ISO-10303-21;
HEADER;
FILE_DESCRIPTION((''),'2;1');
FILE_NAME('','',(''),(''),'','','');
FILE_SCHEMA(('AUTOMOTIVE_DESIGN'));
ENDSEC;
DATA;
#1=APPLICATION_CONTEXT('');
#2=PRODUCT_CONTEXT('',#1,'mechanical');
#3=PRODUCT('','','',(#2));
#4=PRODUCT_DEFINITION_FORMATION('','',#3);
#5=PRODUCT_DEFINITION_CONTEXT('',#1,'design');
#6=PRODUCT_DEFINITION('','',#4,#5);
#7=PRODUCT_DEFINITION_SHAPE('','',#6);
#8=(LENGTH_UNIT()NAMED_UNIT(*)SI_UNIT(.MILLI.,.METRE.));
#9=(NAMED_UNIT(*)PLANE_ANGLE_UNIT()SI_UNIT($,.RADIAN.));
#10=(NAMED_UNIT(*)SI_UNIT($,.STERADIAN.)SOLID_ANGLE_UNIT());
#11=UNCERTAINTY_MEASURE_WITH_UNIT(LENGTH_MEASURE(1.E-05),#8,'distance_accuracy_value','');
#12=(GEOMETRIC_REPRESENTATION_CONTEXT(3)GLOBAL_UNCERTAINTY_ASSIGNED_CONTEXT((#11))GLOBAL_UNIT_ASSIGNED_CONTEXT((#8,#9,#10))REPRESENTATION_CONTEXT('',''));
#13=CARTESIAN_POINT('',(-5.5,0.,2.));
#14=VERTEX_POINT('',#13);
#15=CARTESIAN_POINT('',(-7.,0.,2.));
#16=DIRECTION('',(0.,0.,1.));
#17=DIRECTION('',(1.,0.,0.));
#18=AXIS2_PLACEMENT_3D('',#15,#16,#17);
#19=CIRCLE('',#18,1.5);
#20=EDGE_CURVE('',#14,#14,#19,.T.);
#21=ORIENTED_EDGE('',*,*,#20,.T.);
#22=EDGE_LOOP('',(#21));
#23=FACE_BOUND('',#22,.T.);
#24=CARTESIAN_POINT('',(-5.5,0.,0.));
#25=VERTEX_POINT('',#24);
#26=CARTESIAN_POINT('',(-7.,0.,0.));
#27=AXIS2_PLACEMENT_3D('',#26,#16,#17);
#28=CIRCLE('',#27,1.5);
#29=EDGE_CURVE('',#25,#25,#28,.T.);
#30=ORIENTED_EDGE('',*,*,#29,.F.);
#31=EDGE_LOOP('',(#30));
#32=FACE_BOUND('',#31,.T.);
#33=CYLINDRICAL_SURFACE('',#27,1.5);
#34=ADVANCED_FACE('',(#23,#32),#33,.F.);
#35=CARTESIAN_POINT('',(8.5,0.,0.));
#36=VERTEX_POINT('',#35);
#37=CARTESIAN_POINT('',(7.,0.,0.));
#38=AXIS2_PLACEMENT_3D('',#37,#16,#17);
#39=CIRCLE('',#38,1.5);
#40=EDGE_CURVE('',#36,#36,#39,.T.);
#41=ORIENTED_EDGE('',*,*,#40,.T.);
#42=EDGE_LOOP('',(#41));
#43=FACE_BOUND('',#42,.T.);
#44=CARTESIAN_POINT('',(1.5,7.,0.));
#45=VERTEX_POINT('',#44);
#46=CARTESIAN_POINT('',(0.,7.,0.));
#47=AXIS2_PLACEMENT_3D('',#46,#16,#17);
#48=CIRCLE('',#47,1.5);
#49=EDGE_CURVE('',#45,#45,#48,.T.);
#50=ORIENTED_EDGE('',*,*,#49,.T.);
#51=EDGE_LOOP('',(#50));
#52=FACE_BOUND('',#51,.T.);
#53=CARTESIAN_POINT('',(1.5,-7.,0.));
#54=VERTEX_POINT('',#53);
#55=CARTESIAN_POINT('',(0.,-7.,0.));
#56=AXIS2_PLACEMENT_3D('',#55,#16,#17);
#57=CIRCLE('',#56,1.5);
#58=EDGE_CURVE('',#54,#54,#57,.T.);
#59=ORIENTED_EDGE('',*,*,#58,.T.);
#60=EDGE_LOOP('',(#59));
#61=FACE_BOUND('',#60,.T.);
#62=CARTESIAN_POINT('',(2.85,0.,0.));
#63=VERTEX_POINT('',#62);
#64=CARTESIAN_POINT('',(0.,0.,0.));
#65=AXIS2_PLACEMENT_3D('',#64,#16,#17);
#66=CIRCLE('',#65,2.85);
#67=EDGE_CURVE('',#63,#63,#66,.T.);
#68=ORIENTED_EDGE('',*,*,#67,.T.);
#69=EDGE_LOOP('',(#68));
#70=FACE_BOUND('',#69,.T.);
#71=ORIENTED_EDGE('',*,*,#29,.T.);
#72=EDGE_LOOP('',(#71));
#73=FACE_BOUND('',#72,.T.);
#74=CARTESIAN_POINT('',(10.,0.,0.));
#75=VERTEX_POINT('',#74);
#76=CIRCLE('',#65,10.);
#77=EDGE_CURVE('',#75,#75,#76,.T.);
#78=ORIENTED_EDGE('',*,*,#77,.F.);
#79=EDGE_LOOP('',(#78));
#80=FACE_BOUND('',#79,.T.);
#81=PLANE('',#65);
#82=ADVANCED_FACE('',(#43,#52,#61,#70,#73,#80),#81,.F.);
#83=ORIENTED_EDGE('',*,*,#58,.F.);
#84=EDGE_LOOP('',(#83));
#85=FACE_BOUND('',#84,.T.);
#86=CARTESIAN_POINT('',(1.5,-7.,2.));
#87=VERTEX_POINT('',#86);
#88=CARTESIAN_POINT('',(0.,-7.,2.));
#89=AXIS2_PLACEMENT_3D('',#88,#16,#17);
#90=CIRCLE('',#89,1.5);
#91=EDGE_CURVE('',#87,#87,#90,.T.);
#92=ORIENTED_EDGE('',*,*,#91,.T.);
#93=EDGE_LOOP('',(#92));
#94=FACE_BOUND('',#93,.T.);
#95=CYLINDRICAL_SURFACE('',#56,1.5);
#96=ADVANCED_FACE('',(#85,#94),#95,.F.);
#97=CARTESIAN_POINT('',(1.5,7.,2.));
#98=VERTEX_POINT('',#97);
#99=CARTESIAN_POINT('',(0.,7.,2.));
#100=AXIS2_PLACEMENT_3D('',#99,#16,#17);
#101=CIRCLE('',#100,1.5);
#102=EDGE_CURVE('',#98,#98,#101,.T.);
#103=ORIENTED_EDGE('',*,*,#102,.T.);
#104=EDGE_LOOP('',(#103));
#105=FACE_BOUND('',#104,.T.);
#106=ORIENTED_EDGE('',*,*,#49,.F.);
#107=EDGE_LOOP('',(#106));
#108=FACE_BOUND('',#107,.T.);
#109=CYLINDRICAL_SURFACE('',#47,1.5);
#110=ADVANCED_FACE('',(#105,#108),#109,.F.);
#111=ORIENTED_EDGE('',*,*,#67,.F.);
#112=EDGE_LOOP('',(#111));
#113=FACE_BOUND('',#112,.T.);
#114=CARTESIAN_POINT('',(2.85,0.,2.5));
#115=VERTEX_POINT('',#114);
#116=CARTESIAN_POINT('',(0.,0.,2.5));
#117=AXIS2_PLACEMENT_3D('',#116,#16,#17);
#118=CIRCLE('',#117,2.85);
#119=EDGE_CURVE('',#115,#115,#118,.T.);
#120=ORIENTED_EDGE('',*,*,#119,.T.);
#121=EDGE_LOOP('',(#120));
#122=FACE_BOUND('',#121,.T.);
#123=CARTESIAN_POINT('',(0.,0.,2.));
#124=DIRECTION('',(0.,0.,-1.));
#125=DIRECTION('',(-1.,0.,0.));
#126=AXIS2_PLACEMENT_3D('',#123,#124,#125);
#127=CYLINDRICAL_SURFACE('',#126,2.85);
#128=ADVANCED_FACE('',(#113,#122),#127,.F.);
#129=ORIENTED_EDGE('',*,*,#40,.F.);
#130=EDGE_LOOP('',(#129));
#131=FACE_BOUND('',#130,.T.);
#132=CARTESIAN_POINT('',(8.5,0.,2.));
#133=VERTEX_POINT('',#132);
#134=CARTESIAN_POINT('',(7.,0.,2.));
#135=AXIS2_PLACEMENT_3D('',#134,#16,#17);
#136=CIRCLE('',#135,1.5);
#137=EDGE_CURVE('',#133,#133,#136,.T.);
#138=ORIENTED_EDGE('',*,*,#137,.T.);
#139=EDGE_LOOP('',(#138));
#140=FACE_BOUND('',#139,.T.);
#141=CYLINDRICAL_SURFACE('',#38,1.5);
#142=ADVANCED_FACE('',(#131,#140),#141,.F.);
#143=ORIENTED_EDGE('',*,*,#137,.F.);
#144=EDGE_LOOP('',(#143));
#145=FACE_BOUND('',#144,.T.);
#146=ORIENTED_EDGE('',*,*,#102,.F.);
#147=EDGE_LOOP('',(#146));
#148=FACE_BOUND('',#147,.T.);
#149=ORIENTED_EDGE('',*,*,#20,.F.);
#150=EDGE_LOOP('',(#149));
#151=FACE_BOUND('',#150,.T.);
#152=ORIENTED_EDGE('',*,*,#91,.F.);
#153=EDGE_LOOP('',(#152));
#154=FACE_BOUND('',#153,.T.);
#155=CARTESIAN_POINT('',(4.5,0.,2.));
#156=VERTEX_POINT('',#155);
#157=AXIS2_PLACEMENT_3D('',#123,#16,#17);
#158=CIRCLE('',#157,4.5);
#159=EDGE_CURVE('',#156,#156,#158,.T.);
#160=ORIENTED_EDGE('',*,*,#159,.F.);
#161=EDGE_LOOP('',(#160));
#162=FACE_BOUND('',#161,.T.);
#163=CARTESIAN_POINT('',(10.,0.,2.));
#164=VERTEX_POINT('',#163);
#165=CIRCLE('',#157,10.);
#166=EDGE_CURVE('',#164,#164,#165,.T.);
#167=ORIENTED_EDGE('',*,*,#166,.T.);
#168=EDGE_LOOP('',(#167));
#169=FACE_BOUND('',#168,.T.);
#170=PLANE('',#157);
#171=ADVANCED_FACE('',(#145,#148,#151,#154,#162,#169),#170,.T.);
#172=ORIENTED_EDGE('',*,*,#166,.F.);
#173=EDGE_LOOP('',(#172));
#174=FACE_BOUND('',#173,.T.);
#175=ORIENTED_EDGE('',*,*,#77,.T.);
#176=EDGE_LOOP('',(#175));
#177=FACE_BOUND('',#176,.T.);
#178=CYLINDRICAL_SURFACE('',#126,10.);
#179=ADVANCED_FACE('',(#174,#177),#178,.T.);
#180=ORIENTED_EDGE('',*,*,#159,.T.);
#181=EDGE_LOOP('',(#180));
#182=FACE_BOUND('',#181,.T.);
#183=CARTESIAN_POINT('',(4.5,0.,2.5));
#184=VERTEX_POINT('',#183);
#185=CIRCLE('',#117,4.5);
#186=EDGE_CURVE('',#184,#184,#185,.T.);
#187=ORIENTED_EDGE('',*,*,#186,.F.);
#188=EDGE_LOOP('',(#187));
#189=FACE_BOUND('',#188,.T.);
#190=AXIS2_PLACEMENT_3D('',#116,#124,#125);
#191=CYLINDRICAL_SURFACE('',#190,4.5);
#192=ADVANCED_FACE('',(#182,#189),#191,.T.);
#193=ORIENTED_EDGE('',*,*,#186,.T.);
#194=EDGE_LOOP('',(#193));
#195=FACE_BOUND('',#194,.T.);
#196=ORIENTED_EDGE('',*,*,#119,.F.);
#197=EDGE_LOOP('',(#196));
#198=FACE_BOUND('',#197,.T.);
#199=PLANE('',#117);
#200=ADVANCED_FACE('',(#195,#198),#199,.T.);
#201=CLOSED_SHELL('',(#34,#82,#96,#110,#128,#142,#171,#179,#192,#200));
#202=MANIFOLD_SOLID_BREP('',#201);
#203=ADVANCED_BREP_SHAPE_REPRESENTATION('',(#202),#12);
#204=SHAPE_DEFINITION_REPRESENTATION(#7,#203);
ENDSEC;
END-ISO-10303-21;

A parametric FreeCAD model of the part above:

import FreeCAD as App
import Part
import Sketcher
Q = App.Units.Quantity

doc = App.newDocument("Part")
body = doc.addObject("PartDesign::Body", "Body")

# Sketch on XY plane
sketch1 = body.newObject("Sketcher::SketchObject", "Sketch")
sketch1.AttachmentSupport = (doc.getObject("XY_Plane"), [""])
sketch1.MapMode = "FlatFace"
sketch1.addGeometry(Part.Circle(App.Vector(0, 0, 0), App.Vector(0, 0, 1), 10), False)
sketch1.addGeometry(Part.Circle(App.Vector(0, 0, 0), App.Vector(0, 0, 1), 2.85), False)
sketch1.addConstraint(Sketcher.Constraint("Coincident", 0, 3, -1, 1))
sketch1.addConstraint(Sketcher.Constraint("Coincident", 1, 3, -1, 1))
sketch1.addConstraint(Sketcher.Constraint("Diameter", 0, Q("20 mm")))
sketch1.addConstraint(Sketcher.Constraint("Diameter", 1, Q("5.7 mm")))
pad1 = body.newObject("PartDesign::Pad", "Pad")
pad1.Profile = sketch1
pad1.Length = 2

# Sketch on XY plane
sketch2 = body.newObject("Sketcher::SketchObject", "Sketch001")
sketch2.AttachmentSupport = (doc.getObject("XY_Plane"), [""])
sketch2.MapMode = "FlatFace"
sketch2.AttachmentOffset = App.Placement(App.Vector(0, 0, 2), App.Rotation())
sketch2.addGeometry(Part.Circle(App.Vector(0, 0, 0), App.Vector(0, 0, 1), 4.5), False)
sketch2.addGeometry(Part.Circle(App.Vector(0, 0, 0), App.Vector(0, 0, 1), 2.85), False)
sketch2.addConstraint(Sketcher.Constraint("Coincident", 0, 3, -1, 1))
sketch2.addConstraint(Sketcher.Constraint("Coincident", 1, 3, -1, 1))
sketch2.addConstraint(Sketcher.Constraint("Diameter", 0, Q("9 mm")))
sketch2.addConstraint(Sketcher.Constraint("Diameter", 1, Q("5.7 mm")))
pad2 = body.newObject("PartDesign::Pad", "Pad001")
pad2.Profile = sketch2
pad2.Length = 0.5

# Sketch on XY plane
sketch3 = body.newObject("Sketcher::SketchObject", "Sketch002")
sketch3.AttachmentSupport = (doc.getObject("XY_Plane"), [""])
sketch3.MapMode = "FlatFace"
sketch3.AttachmentOffset = App.Placement(App.Vector(0, 0, 2), App.Rotation())
sketch3.addGeometry(Part.Circle(App.Vector(0, 7, 0), App.Vector(0, 0, 1), 1.5), False)
sketch3.addGeometry(Part.Circle(App.Vector(0, -7, 0), App.Vector(0, 0, 1), 1.5), False)
sketch3.addGeometry(Part.Circle(App.Vector(7, 0, 0), App.Vector(0, 0, 1), 1.5), False)
sketch3.addGeometry(Part.Circle(App.Vector(-7, 0, 0), App.Vector(0, 0, 1), 1.5), False)
sketch3.addConstraint(Sketcher.Constraint("Equal", 0, 1))
sketch3.addConstraint(Sketcher.Constraint("Equal", 1, 2))
sketch3.addConstraint(Sketcher.Constraint("Equal", 2, 3))
sketch3.addConstraint(Sketcher.Constraint("Symmetric", 0, 3, 1, 3, -1, 1))
sketch3.addConstraint(Sketcher.Constraint("Symmetric", 2, 3, 3, 3, -1, 1))
sketch3.addConstraint(Sketcher.Constraint("PointOnObject", 0, 3, -2))
sketch3.addConstraint(Sketcher.Constraint("PointOnObject", 2, 3, -1))
sketch3.addConstraint(Sketcher.Constraint("Diameter", 0, Q("3 mm")))
sketch3.addConstraint(Sketcher.Constraint("DistanceY", -1, 1, 0, 3, Q("7 mm")))
sketch3.addConstraint(Sketcher.Constraint("DistanceX", -1, 1, 2, 3, Q("7 mm")))
pocket1 = body.newObject("PartDesign::Pocket", "Pocket")
pocket1.Profile = sketch3
pocket1.Type = "ThroughAll"

doc.recompute()
